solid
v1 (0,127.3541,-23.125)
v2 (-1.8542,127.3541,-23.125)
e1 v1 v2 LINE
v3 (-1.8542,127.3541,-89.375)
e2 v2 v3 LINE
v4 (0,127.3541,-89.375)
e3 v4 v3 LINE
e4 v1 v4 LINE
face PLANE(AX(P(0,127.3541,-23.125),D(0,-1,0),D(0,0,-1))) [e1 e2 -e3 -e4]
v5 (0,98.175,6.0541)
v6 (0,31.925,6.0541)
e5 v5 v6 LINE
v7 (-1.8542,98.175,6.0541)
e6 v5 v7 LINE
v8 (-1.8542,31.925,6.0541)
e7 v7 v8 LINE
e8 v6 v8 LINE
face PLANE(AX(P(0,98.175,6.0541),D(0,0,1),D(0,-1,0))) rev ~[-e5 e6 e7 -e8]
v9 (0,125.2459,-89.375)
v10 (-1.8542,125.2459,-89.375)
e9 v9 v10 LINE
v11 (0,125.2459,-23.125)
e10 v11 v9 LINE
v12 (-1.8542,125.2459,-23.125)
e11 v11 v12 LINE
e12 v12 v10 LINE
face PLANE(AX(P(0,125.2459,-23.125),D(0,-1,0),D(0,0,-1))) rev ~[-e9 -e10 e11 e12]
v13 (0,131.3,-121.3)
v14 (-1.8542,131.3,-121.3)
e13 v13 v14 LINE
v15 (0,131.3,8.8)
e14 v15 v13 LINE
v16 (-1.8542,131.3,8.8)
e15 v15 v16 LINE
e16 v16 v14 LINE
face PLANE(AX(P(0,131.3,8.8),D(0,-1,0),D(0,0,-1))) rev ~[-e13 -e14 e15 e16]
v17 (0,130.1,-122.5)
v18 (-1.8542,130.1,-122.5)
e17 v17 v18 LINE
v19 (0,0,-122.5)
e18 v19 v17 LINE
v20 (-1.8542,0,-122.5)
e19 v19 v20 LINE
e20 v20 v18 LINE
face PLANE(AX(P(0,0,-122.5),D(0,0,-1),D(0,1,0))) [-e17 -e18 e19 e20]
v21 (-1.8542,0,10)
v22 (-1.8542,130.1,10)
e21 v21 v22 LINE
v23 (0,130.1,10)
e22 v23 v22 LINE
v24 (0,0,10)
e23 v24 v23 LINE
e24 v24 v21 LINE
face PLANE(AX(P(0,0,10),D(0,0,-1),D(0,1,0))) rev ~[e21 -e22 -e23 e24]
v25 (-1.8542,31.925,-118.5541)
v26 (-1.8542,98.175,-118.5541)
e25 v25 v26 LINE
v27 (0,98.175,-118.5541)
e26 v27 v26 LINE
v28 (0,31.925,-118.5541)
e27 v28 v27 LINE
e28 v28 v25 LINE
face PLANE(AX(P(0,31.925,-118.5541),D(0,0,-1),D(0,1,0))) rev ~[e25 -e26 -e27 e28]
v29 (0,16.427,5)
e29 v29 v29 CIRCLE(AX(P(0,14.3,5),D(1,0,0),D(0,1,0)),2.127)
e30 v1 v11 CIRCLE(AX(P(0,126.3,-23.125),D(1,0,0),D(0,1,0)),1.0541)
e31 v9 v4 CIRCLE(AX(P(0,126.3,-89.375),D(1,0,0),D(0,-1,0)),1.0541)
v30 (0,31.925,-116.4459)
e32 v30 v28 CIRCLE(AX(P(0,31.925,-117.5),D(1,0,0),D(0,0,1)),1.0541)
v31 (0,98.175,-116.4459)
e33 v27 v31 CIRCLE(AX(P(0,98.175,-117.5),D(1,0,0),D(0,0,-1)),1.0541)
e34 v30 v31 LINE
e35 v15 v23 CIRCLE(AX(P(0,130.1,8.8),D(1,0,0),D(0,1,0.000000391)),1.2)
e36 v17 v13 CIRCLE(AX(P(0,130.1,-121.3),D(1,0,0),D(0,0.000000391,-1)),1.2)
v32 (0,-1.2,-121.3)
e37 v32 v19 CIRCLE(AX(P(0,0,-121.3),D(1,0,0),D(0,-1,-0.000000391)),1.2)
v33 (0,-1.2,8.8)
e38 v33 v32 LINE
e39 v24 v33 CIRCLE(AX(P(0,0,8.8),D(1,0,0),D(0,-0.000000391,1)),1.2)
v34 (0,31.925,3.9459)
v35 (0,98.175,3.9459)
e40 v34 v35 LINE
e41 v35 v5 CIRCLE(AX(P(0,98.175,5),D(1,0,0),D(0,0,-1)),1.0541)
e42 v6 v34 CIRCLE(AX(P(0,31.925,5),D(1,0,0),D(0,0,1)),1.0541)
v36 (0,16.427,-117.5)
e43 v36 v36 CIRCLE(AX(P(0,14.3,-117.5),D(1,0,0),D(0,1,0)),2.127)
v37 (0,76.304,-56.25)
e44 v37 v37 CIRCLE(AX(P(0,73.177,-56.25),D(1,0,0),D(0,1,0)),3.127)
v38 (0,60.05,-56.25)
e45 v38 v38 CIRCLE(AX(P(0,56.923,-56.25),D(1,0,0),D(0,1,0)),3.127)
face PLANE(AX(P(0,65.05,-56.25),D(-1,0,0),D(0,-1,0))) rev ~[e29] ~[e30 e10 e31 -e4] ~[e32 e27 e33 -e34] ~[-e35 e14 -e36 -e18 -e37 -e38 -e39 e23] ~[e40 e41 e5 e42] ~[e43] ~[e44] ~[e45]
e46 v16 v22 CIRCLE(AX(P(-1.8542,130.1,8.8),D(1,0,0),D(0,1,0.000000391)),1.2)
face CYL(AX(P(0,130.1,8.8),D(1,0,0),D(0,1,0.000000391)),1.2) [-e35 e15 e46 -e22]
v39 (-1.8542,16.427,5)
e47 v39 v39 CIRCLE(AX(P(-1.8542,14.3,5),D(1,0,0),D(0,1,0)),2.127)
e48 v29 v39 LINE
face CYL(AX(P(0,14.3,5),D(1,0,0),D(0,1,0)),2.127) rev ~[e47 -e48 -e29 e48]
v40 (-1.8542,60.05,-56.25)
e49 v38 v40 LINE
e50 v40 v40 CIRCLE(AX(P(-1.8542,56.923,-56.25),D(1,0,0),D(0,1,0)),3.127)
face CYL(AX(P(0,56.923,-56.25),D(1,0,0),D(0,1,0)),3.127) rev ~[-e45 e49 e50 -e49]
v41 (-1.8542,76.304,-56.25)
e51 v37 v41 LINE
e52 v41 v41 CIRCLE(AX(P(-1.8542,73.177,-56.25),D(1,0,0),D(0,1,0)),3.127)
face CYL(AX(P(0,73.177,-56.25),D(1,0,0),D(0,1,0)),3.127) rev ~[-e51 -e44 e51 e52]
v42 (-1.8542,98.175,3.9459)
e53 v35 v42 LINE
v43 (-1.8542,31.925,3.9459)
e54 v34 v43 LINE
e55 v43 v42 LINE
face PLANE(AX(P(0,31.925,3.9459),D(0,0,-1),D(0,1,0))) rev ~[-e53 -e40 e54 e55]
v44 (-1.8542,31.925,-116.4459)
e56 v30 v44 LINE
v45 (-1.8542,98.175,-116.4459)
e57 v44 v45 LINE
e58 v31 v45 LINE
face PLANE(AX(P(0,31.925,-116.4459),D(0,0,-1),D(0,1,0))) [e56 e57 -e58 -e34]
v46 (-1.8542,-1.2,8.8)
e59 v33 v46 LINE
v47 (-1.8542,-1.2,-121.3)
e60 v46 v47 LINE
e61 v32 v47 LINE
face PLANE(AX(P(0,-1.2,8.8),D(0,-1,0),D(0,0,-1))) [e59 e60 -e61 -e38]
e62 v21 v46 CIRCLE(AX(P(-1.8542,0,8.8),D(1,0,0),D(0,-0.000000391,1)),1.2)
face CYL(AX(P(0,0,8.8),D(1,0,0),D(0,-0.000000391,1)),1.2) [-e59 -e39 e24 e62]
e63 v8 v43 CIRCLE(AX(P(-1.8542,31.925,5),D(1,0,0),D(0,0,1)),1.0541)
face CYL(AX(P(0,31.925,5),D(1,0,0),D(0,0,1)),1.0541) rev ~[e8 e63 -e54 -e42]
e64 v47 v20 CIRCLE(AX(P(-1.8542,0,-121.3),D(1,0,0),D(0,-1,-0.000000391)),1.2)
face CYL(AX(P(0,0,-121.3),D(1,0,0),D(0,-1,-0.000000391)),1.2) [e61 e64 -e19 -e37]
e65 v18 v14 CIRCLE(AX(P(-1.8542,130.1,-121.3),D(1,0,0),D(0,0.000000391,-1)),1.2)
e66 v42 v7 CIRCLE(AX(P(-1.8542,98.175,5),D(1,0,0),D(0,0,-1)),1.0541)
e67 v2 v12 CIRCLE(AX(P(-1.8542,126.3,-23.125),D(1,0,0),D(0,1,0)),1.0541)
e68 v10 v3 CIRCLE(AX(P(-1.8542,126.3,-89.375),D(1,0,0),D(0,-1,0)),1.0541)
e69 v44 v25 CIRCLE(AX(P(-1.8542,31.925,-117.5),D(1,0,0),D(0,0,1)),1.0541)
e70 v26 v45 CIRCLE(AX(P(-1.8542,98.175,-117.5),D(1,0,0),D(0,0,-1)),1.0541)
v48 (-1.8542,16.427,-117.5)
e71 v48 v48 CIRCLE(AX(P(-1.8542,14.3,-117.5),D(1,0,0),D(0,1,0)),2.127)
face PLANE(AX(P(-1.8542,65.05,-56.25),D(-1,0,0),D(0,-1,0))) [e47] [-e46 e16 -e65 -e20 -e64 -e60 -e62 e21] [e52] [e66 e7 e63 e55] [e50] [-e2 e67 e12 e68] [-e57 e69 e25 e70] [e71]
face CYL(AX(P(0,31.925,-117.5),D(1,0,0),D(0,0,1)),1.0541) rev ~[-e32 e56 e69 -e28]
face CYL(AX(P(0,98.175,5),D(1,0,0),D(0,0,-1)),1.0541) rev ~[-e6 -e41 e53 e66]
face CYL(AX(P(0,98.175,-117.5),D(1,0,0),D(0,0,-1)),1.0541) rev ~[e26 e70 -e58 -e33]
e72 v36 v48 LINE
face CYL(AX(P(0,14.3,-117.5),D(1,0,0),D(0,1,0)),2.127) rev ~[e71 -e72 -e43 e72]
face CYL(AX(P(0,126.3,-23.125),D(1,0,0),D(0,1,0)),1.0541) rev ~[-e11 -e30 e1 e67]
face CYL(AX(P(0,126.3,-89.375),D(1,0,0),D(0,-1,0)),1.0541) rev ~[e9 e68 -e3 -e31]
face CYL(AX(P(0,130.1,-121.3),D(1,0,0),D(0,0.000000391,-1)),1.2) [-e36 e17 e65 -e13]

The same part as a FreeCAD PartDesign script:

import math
import FreeCAD as App
import Part
import Sketcher

V = App.Vector

doc = App.newDocument("Part")
params = doc.addObject("Spreadsheet::Sheet", "Params")
for row, (alias, value) in enumerate([
    ("sketch1_radius", "1.2 mm"),
    ("sketch1_width", "130.1 mm"),
    ("sketch1_width2", "66.25 mm"),
    ("pad1_length", "1.8542 mm"),
], start=1):
    params.set(f"A{row}", alias)
    params.set(f"B{row}", "=" + value)
    params.setAlias(f"B{row}", alias)

body = doc.addObject("PartDesign::Body", "Body")

# Sketch on YZ plane
sketch1 = body.newObject("Sketcher::SketchObject", "Sketch")
sketch1.AttachmentSupport = (doc.getObject("YZ_Plane"), [""])
sketch1.MapMode = "FlatFace"
sketch1.addGeometry([
    Part.LineSegment(V(130.1, 10, 0), V(0, 10, 0)),  # 0
    Part.ArcOfCircle(Part.Circle(V(0, 8.8, 0), V(0, 0, 1), 1.2), math.radians(90), math.radians(180)),  # 1
    Part.LineSegment(V(-1.2, 8.8, 0), V(-1.2, -121.3, 0)),  # 2
    Part.ArcOfCircle(Part.Circle(V(0, -121.3, 0), V(0, 0, 1), 1.2), math.radians(-180), math.radians(-90)),  # 3
    Part.LineSegment(V(0, -122.5, 0), V(130.1, -122.5, 0)),  # 4
    Part.ArcOfCircle(Part.Circle(V(130.1, -121.3, 0), V(0, 0, 1), 1.2), math.radians(-90), math.radians(0)),  # 5
    Part.LineSegment(V(131.3, -121.3, 0), V(131.3, 8.8, 0)),  # 6
    Part.ArcOfCircle(Part.Circle(V(130.1, 8.8, 0), V(0, 0, 1), 1.2), math.radians(0), math.radians(90)),  # 7
    Part.LineSegment(V(127.4, -23.1, 0), V(127.4, -89.4, 0)),  # 8
    Part.ArcOfCircle(Part.Circle(V(126.3, -89.4, 0), V(0, 0, 1), 1.1), math.radians(180), math.radians(360)),  # 9
    Part.LineSegment(V(125.2, -89.4, 0), V(125.2, -23.1, 0)),  # 10
    Part.ArcOfCircle(Part.Circle(V(126.3, -23.1, 0), V(0, 0, 1), 1.1), math.radians(0), math.radians(180)),  # 11
    Part.LineSegment(V(31.9, -116.4, 0), V(98.2, -116.4, 0)),  # 12
    Part.ArcOfCircle(Part.Circle(V(98.2, -117.5, 0), V(0, 0, 1), 1.1), math.radians(-90), math.radians(90)),  # 13
    Part.LineSegment(V(98.2, -118.6, 0), V(31.9, -118.6, 0)),  # 14
    Part.ArcOfCircle(Part.Circle(V(31.9, -117.5, 0), V(0, 0, 1), 1.1), math.radians(90), math.radians(270)),  # 15
    Part.Circle(V(14.3, -117.5, 0), V(0, 0, 1), 2.1),  # 16
    Part.Circle(V(73.2, -56.2, 0), V(0, 0, 1), 3.1),  # 17
    Part.Circle(V(56.9, -56.2, 0), V(0, 0, 1), 3.1),  # 18
    Part.ArcOfCircle(Part.Circle(V(31.9, 5, 0), V(0, 0, 1), 1.1), math.radians(90), math.radians(270)),  # 19
    Part.LineSegment(V(31.9, 6.1, 0), V(98.2, 6.1, 0)),  # 20
    Part.ArcOfCircle(Part.Circle(V(98.2, 5, 0), V(0, 0, 1), 1.1), math.radians(-90), math.radians(90)),  # 21
    Part.LineSegment(V(98.2, 3.9, 0), V(31.9, 3.9, 0)),  # 22
    Part.Circle(V(14.3, 5, 0), V(0, 0, 1), 2.1),  # 23
], False)
sketch1.addConstraint([
    Sketcher.Constraint("Tangent", 0, 2, 1, 1),
    Sketcher.Constraint("Tangent", 1, 2, 2, 1),
    Sketcher.Constraint("Tangent", 2, 2, 3, 1),
    Sketcher.Constraint("Tangent", 3, 2, 4, 1),
    Sketcher.Constraint("Tangent", 4, 2, 5, 1),
    Sketcher.Constraint("Tangent", 5, 2, 6, 1),
    Sketcher.Constraint("Tangent", 6, 2, 7, 1),
    Sketcher.Constraint("Tangent", 7, 2, 0, 1),
    Sketcher.Constraint("Tangent", 8, 2, 9, 2),
    Sketcher.Constraint("Tangent", 9, 1, 10, 1),
    Sketcher.Constraint("Tangent", 10, 2, 11, 2),
    Sketcher.Constraint("Tangent", 11, 1, 8, 1),
    Sketcher.Constraint("Tangent", 12, 2, 13, 2),
    Sketcher.Constraint("Tangent", 13, 1, 14, 1),
    Sketcher.Constraint("Tangent", 14, 2, 15, 2),
    Sketcher.Constraint("Tangent", 15, 1, 12, 1),
    Sketcher.Constraint("Tangent", 19, 1, 20, 1),
    Sketcher.Constraint("Tangent", 20, 2, 21, 2),
    Sketcher.Constraint("Tangent", 21, 1, 22, 1),
    Sketcher.Constraint("Tangent", 22, 2, 19, 2),
    Sketcher.Constraint("Horizontal", 0),
    Sketcher.Constraint("Vertical", 2),
    Sketcher.Constraint("Horizontal", 4),
    Sketcher.Constraint("Vertical", 6),
    Sketcher.Constraint("Vertical", 8),
    Sketcher.Constraint("Vertical", 10),
    Sketcher.Constraint("Horizontal", 12),
    Sketcher.Constraint("Horizontal", 14),
    Sketcher.Constraint("Horizontal", 20),
    Sketcher.Constraint("Horizontal", 22),
    Sketcher.Constraint("Equal", 1, 3),
    Sketcher.Constraint("Equal", 3, 5),
    Sketcher.Constraint("Equal", 5, 7),
    Sketcher.Constraint("Equal", 11, 13),
    Sketcher.Constraint("Equal", 17, 18),
    Sketcher.Constraint("Equal", 15, 19),
    Sketcher.Constraint("Equal", 16, 23),
    Sketcher.Constraint("PointOnObject", 1, 3, -2),
    Sketcher.Constraint("Horizontal", 15, 3, 16, 3),
    Sketcher.Constraint("Horizontal", 17, 3, 18, 3),
    Sketcher.Constraint("Horizontal", 21, 3, 23, 3),
    Sketcher.Constraint("Vertical", 15, 3, 19, 3),
    Sketcher.Constraint("Vertical", 13, 3, 21, 3),
    Sketcher.Constraint("Vertical", 16, 3, 23, 3),
    Sketcher.Constraint("Equal", 4, 2),
    Sketcher.Constraint("Equal", 22, 8),
    Sketcher.Constraint("Radius", 1, 1.2),
    Sketcher.Constraint("Diameter", 16, 4.254),
    Sketcher.Constraint("Diameter", 17, 6.254),
    Sketcher.Constraint("DistanceX", 0, 2, 0, 1, 130.1),
    Sketcher.Constraint("DistanceY", -1, 1, 19, 3, 5.0),
    Sketcher.Constraint("DistanceY", -1, 1, 0, 2, 10.0),
    Sketcher.Constraint("DistanceX", 16, 3, 9, 3, 112.0),
    Sketcher.Constraint("DistanceY", 3, 2, 16, 3, 5.0),
    Sketcher.Constraint("DistanceX", 9, 3, 5, 2, 5.0),
    Sketcher.Constraint("DistanceX", 12, 1, 12, 2, 66.25),
    Sketcher.Constraint("Radius", 9, 1.0541),
    Sketcher.Constraint("DistanceY", 17, 3, -1, 1, 56.25),
    Sketcher.Constraint("DistanceY", 9, 3, -1, 1, 89.375),
    Sketcher.Constraint("DistanceX", -1, 1, 13, 3, 98.175),
    Sketcher.Constraint("DistanceX", -1, 1, 17, 3, 73.177),
    Sketcher.Constraint("DistanceX", -1, 1, 18, 3, 56.923),
])
sketch1.setExpression("Constraints[46]", "Params.sketch1_radius")
sketch1.setExpression("Constraints[49]", "Params.sketch1_width")
sketch1.setExpression("Constraints[55]", "Params.sketch1_width2")
pad1 = body.newObject("PartDesign::Pad", "Pad")
pad1.Profile = sketch1
pad1.setExpression("Length", "Params.pad1_length")
pad1.Reversed = True

doc.recompute()
